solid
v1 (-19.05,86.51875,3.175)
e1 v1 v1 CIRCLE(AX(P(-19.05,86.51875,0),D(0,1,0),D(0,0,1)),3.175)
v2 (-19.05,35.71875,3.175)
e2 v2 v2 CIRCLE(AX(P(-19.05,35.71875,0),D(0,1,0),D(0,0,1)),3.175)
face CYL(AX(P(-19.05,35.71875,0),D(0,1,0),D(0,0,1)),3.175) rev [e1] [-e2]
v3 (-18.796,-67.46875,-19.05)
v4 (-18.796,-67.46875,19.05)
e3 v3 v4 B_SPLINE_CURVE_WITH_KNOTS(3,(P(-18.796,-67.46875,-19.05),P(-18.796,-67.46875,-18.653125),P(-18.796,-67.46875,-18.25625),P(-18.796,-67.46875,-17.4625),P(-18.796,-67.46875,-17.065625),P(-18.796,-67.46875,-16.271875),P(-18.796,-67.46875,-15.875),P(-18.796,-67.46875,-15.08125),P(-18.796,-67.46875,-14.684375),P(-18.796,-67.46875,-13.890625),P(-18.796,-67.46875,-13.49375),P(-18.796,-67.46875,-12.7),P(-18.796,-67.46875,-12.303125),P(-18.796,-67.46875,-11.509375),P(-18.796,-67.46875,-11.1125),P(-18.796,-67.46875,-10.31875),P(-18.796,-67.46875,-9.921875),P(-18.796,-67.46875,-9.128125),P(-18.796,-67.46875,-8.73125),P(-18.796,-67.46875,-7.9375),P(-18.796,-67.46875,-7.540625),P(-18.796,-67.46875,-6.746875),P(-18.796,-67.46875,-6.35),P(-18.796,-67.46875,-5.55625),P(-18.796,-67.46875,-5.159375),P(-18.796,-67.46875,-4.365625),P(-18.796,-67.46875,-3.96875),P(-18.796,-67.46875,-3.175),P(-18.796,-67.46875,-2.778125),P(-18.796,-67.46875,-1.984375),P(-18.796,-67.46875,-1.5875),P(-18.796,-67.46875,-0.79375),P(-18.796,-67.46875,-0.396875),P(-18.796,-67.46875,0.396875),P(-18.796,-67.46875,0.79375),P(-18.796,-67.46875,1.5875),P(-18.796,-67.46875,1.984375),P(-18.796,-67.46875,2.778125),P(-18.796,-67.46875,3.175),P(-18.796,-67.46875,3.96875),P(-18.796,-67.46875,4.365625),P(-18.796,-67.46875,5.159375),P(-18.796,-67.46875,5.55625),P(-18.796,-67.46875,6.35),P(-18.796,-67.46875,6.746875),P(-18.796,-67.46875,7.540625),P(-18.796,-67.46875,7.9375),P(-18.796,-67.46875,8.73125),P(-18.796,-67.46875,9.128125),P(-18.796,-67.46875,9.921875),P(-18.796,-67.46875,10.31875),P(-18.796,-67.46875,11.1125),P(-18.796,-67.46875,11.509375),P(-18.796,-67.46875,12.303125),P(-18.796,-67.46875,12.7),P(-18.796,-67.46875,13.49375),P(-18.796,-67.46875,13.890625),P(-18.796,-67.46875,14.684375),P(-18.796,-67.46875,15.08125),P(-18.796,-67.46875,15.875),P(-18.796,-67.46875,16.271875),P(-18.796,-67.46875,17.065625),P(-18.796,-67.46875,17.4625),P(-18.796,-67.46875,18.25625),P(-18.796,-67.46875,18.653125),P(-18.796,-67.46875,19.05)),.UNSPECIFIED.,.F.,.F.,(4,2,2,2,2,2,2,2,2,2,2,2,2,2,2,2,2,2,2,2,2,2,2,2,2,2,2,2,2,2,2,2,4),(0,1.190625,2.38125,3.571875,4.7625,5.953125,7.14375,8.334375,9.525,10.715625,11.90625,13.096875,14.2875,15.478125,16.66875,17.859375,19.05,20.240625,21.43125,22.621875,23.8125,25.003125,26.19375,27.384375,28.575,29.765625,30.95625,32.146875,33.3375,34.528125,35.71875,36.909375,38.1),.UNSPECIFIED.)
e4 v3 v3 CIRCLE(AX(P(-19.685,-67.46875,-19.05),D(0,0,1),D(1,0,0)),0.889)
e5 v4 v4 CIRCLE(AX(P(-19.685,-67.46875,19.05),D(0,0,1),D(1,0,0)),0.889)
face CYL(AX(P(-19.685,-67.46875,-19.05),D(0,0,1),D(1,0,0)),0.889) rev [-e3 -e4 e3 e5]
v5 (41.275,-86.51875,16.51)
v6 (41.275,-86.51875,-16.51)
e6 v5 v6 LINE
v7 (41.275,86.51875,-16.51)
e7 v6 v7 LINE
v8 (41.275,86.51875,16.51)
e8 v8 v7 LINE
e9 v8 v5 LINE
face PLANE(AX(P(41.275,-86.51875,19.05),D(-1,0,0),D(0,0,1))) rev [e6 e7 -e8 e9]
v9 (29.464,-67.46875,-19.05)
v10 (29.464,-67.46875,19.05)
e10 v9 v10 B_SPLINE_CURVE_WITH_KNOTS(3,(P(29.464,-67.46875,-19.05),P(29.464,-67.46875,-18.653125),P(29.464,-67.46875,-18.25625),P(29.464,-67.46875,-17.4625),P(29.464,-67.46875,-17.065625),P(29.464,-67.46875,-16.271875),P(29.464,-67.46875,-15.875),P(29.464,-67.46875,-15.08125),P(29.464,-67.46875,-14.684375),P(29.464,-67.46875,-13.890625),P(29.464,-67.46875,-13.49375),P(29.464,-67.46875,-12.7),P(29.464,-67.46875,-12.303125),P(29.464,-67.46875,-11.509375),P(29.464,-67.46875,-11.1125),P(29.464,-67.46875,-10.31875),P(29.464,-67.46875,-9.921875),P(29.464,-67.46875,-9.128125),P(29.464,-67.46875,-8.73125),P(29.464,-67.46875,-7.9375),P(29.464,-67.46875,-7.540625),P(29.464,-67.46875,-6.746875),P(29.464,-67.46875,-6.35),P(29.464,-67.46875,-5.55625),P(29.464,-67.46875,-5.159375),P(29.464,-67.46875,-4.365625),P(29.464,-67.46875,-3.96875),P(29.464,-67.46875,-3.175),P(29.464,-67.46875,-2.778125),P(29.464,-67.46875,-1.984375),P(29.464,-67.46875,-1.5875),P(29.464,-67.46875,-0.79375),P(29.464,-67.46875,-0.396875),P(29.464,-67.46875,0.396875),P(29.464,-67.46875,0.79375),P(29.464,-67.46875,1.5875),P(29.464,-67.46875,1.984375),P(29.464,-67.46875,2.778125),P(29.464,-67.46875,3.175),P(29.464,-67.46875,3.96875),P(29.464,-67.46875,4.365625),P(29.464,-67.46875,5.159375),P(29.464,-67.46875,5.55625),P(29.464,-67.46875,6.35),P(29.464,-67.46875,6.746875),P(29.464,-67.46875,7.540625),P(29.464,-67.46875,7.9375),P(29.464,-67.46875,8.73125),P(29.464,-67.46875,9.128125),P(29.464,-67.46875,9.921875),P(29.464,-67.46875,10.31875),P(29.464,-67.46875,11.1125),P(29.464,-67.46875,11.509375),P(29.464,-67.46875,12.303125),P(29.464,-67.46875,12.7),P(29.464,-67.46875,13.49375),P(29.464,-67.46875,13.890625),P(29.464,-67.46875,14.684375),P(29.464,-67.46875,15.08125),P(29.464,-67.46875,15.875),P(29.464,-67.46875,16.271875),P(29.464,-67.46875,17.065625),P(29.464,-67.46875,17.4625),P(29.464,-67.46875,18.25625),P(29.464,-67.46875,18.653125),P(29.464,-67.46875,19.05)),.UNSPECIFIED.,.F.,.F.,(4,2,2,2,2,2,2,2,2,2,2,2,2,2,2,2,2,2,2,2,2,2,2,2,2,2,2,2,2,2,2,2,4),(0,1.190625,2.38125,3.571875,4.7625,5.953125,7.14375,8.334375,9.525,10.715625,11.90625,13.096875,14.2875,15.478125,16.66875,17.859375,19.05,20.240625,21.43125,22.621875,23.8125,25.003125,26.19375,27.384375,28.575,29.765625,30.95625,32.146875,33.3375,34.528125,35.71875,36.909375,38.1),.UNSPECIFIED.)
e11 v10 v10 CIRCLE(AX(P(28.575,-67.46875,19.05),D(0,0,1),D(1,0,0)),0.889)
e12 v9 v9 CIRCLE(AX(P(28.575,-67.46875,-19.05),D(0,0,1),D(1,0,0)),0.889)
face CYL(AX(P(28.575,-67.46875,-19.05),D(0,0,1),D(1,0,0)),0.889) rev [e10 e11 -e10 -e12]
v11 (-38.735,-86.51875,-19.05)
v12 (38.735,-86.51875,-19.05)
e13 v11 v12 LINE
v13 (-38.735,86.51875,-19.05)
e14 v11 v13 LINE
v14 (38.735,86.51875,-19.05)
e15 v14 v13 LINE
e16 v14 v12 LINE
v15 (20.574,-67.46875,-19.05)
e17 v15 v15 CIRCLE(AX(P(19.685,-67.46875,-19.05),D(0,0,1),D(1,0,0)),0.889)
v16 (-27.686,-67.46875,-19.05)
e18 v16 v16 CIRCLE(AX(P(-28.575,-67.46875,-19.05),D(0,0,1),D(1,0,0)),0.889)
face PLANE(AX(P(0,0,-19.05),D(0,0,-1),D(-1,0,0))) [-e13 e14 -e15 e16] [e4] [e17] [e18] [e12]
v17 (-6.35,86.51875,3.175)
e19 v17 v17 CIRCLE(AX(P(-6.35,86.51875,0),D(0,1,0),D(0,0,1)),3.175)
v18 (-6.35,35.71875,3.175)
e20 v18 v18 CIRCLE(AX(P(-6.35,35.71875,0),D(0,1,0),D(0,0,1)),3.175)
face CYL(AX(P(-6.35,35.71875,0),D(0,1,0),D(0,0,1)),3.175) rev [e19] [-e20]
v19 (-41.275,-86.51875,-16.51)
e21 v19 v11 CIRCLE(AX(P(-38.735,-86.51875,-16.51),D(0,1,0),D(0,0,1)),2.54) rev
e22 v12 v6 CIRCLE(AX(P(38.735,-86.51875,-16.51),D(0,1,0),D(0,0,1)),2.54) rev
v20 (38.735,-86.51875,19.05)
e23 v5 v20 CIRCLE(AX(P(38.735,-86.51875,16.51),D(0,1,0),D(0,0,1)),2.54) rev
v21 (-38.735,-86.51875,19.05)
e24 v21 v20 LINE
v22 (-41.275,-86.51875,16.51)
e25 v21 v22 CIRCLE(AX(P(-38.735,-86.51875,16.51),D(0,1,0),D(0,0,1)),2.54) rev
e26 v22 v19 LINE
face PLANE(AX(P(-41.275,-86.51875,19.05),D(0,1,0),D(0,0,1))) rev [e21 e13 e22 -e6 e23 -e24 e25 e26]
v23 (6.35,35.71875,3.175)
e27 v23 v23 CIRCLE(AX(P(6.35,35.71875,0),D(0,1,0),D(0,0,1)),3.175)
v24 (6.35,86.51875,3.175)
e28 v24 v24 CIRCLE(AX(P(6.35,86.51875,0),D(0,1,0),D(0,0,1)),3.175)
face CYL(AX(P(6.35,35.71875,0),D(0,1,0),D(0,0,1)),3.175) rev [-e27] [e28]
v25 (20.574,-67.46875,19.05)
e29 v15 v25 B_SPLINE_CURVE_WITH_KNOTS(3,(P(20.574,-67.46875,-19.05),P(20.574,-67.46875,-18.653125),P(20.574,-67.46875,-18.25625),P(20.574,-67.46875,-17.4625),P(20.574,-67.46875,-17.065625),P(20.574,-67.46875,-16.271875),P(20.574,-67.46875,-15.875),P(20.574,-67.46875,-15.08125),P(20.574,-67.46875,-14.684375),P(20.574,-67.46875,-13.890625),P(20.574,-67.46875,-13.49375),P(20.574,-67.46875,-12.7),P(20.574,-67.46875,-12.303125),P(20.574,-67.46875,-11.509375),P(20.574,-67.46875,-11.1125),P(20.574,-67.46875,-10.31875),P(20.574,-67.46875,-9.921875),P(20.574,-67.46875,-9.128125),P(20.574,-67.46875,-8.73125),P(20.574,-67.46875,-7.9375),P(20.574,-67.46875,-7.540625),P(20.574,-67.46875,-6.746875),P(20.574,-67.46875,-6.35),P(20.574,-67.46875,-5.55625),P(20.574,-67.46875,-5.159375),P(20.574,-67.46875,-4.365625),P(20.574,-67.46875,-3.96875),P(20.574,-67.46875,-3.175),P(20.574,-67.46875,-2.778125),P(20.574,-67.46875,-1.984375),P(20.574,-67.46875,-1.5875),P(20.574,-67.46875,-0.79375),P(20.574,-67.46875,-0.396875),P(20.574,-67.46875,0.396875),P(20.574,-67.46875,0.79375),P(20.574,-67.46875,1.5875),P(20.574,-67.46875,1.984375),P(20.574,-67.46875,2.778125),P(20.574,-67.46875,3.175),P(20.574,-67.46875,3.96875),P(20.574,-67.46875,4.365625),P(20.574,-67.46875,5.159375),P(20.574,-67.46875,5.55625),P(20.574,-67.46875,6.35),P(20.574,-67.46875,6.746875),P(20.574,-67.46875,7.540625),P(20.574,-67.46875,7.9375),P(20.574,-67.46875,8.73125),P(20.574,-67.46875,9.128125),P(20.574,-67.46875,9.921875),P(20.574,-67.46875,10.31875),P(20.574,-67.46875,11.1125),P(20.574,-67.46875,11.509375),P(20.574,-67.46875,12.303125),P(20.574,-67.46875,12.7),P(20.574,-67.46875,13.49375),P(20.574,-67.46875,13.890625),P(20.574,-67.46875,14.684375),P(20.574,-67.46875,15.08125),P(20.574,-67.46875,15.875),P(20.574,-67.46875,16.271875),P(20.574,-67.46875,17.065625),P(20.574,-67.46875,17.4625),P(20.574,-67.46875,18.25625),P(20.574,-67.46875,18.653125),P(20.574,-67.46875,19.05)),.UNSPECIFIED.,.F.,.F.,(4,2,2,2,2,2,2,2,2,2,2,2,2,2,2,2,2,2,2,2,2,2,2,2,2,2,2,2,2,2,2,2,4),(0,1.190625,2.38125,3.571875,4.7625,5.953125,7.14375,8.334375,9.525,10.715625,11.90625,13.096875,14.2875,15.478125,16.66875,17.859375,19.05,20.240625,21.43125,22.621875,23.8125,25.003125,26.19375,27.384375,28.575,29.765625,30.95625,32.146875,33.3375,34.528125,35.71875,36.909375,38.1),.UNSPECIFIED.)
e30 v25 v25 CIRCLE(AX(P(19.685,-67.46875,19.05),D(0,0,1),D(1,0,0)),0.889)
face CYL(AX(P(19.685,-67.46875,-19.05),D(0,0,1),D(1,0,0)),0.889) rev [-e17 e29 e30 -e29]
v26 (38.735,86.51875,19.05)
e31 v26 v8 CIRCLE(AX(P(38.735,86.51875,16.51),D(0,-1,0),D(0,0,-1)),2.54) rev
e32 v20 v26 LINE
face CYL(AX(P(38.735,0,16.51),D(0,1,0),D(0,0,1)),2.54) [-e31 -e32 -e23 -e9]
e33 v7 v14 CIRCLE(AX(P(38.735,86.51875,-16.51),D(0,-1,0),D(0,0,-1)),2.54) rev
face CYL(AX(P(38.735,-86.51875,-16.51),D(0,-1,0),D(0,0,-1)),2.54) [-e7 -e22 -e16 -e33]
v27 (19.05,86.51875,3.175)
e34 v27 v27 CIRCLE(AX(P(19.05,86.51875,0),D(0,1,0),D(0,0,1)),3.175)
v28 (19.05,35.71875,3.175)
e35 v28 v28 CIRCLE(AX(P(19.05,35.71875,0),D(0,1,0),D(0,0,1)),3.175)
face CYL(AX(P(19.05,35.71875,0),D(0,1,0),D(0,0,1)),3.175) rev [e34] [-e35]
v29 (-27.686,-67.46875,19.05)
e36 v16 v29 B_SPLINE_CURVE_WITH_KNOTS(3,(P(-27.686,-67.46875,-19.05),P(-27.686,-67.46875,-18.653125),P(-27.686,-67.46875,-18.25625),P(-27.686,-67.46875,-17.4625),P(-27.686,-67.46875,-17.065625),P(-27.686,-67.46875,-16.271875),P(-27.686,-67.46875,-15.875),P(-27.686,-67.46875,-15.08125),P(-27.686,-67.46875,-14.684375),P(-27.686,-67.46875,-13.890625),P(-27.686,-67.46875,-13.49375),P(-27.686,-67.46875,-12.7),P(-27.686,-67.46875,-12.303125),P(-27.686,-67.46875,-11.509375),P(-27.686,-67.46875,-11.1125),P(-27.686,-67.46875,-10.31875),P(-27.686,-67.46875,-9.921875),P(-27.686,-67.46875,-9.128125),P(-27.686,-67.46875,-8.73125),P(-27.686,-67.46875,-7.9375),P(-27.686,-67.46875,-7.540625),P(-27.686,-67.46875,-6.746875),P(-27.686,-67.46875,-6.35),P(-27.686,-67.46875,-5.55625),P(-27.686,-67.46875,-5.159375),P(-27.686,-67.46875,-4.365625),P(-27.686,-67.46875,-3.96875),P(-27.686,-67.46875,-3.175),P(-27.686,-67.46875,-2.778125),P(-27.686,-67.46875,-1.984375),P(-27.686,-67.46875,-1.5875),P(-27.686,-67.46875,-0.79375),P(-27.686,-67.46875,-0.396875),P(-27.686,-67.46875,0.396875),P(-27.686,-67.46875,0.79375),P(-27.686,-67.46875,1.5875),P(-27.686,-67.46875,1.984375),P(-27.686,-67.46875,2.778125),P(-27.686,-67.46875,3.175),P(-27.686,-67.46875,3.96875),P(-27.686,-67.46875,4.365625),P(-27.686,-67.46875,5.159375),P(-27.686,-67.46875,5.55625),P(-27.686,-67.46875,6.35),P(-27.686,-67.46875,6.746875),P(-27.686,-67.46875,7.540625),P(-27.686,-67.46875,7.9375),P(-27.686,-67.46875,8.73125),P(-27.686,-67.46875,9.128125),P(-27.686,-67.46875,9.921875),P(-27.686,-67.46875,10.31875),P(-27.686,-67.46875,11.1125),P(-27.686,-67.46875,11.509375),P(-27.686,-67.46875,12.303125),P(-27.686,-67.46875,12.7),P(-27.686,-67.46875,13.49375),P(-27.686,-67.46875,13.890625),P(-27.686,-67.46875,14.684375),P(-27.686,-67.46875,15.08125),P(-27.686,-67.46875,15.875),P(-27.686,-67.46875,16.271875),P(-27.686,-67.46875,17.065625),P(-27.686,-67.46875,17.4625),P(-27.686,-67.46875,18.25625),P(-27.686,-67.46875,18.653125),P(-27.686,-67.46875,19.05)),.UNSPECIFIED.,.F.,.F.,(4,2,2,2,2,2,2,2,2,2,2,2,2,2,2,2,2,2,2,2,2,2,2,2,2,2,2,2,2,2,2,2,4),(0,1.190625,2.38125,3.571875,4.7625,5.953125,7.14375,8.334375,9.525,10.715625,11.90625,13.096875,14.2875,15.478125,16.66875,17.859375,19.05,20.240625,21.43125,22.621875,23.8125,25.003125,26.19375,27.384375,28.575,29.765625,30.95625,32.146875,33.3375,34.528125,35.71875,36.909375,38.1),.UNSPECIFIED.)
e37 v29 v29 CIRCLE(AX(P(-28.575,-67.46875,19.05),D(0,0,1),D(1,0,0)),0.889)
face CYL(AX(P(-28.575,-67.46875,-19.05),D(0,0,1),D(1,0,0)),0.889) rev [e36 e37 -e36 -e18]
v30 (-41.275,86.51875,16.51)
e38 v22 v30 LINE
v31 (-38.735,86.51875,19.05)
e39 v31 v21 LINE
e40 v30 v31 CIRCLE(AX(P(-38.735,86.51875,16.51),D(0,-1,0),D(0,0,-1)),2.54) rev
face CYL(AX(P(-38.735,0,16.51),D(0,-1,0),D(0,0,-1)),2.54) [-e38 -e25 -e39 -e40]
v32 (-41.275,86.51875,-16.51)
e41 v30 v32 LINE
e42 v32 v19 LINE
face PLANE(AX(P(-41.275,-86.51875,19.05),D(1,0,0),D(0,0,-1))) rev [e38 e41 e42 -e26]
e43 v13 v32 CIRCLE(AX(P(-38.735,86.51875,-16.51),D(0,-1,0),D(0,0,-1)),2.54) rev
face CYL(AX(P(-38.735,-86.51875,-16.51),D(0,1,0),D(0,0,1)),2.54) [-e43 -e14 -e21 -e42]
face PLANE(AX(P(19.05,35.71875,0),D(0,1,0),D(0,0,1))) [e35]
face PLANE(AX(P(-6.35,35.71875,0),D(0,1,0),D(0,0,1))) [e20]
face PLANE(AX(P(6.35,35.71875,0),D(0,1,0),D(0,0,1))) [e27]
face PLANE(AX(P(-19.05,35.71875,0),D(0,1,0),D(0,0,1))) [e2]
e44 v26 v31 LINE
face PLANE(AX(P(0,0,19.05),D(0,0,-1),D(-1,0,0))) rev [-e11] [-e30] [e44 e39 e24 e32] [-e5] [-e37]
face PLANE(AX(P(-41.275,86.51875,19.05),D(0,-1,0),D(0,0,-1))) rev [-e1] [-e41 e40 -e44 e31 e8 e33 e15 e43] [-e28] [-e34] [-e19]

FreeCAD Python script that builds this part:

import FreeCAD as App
import Part
import Sketcher
from FreeCAD import Vector
Q = App.Units.Quantity


def edges_at(feature, points):
    """Names of the edges that pass closest to the given points."""
    edges = feature.Shape.Edges
    near = lambda p: min(range(len(edges)), key=lambda i: edges[i].distToShape(Part.Vertex(*p))[0])
    return sorted({f"Edge{near(p) + 1}" for p in points})

doc = App.newDocument("Part")
body = doc.addObject("PartDesign::Body", "Body")

# Sketch on XY plane
sketch1 = body.newObject("Sketcher::SketchObject", "Sketch")
sketch1.AttachmentSupport = (doc.getObject("XY_Plane"), [""])
sketch1.MapMode = "FlatFace"
sketch1.addGeometry([
    Part.LineSegment(Vector(-41, 87, 0), Vector(-41, -87, 0)),
    Part.LineSegment(Vector(-41, -87, 0), Vector(41, -87, 0)),
    Part.LineSegment(Vector(41, -87, 0), Vector(41, 87, 0)),
    Part.LineSegment(Vector(41, 87, 0), Vector(-41, 87, 0)),
], False)
sketch1.addConstraint([
    Sketcher.Constraint("Coincident", 0, 2, 1, 1),
    Sketcher.Constraint("Coincident", 1, 2, 2, 1),
    Sketcher.Constraint("Coincident", 2, 2, 3, 1),
    Sketcher.Constraint("Coincident", 3, 2, 0, 1),
    Sketcher.Constraint("Vertical", 0),
    Sketcher.Constraint("Horizontal", 1),
    Sketcher.Constraint("Vertical", 2),
    Sketcher.Constraint("Horizontal", 3),
    Sketcher.Constraint("Symmetric", 0, 2, 2, 2, -1, 1),
    Sketcher.Constraint("DistanceX", 1, 1, 1, 2, Q("3.25 in")),
    Sketcher.Constraint("DistanceY", 0, 2, 0, 1, Q("6.8125 in")),
])
pad1 = body.newObject("PartDesign::Pad", "Pad")
pad1.Profile = sketch1
pad1.Length = Q("1.5 in")
pad1.Midplane = True

# Sketch on XY plane
sketch2 = body.newObject("Sketcher::SketchObject", "Sketch001")
sketch2.AttachmentSupport = (doc.getObject("XY_Plane"), [""])
sketch2.MapMode = "FlatFace"
sketch2.AttachmentOffset = App.Placement(Vector(0, 0, 0.75 * 25.4), App.Rotation())
sketch2.addGeometry([
    Part.Circle(Vector(-28.6, -67.5, 0), Vector(0, 0, 1), 0.9),
    Part.Circle(Vector(-19.7, -67.5, 0), Vector(0, 0, 1), 0.9),
    Part.Circle(Vector(28.6, -67.5, 0), Vector(0, 0, 1), 0.9),
    Part.Circle(Vector(19.7, -67.5, 0), Vector(0, 0, 1), 0.9),
], False)
sketch2.addConstraint([
    Sketcher.Constraint("Equal", 0, 1),
    Sketcher.Constraint("Equal", 1, 2),
    Sketcher.Constraint("Equal", 2, 3),
    Sketcher.Constraint("Symmetric", 0, 3, 2, 3, -2),
    Sketcher.Constraint("Symmetric", 1, 3, 3, 3, -2),
    Sketcher.Constraint("Horizontal", 0, 3, 1, 3),
    Sketcher.Constraint("Diameter", 0, Q("0.07 in")),
    Sketcher.Constraint("DistanceX", 1, 3, 2, 3, Q("1.9 in")),
    Sketcher.Constraint("DistanceX", 0, 3, 1, 3, Q("0.35 in")),
    Sketcher.Constraint("DistanceY", 0, 3, -1, 1, Q("2.65625 in")),
])
pocket1 = body.newObject("PartDesign::Pocket", "Pocket")
pocket1.Profile = sketch2
pocket1.Type = "ThroughAll"
doc.recompute()

fillet = body.newObject("PartDesign::Fillet", "Fillet")
fillet.Base = (pocket1, edges_at(pocket1, [
    (-41.275, 0, 19.05),
    (41.275, 0, 19.05),
    (-41.275, 0, -19.05),
    (41.275, 0, -19.05),
]))
fillet.Radius = Q("0.1 in")

# Sketch on XZ plane
sketch3 = body.newObject("Sketcher::SketchObject", "Sketch002")
sketch3.AttachmentSupport = (doc.getObject("XZ_Plane"), [""])
sketch3.MapMode = "FlatFace"
sketch3.AttachmentOffset = App.Placement(Vector(0, 0, -3.40625 * 25.4), App.Rotation())
sketch3.addGeometry([
    Part.Circle(Vector(19.1, 0, 0), Vector(0, 0, 1), 3.2),
    Part.Circle(Vector(-19.1, 0, 0), Vector(0, 0, 1), 3.2),
    Part.Circle(Vector(-6.3, 0, 0), Vector(0, 0, 1), 3.2),
    Part.Circle(Vector(6.3, 0, 0), Vector(0, 0, 1), 3.2),
], False)
sketch3.addConstraint([
    Sketcher.Constraint("Equal", 0, 1),
    Sketcher.Constraint("Equal", 1, 2),
    Sketcher.Constraint("Equal", 2, 3),
    Sketcher.Constraint("Symmetric", 0, 3, 1, 3, -1, 1),
    Sketcher.Constraint("Symmetric", 2, 3, 3, 3, -1, 1),
    Sketcher.Constraint("PointOnObject", 0, 3, -1),
    Sketcher.Constraint("PointOnObject", 2, 3, -1),
    Sketcher.Constraint("Diameter", 0, Q("0.25 in")),
    Sketcher.Constraint("DistanceX", 2, 3, 0, 3, Q("1 in")),
    Sketcher.Constraint("DistanceX", 1, 3, 0, 3, Q("1.5 in")),
])
pocket2 = body.newObject("PartDesign::Pocket", "Pocket001")
pocket2.Profile = sketch3
pocket2.Length = Q("2 in")
pocket2.Reversed = True

doc.recompute()
